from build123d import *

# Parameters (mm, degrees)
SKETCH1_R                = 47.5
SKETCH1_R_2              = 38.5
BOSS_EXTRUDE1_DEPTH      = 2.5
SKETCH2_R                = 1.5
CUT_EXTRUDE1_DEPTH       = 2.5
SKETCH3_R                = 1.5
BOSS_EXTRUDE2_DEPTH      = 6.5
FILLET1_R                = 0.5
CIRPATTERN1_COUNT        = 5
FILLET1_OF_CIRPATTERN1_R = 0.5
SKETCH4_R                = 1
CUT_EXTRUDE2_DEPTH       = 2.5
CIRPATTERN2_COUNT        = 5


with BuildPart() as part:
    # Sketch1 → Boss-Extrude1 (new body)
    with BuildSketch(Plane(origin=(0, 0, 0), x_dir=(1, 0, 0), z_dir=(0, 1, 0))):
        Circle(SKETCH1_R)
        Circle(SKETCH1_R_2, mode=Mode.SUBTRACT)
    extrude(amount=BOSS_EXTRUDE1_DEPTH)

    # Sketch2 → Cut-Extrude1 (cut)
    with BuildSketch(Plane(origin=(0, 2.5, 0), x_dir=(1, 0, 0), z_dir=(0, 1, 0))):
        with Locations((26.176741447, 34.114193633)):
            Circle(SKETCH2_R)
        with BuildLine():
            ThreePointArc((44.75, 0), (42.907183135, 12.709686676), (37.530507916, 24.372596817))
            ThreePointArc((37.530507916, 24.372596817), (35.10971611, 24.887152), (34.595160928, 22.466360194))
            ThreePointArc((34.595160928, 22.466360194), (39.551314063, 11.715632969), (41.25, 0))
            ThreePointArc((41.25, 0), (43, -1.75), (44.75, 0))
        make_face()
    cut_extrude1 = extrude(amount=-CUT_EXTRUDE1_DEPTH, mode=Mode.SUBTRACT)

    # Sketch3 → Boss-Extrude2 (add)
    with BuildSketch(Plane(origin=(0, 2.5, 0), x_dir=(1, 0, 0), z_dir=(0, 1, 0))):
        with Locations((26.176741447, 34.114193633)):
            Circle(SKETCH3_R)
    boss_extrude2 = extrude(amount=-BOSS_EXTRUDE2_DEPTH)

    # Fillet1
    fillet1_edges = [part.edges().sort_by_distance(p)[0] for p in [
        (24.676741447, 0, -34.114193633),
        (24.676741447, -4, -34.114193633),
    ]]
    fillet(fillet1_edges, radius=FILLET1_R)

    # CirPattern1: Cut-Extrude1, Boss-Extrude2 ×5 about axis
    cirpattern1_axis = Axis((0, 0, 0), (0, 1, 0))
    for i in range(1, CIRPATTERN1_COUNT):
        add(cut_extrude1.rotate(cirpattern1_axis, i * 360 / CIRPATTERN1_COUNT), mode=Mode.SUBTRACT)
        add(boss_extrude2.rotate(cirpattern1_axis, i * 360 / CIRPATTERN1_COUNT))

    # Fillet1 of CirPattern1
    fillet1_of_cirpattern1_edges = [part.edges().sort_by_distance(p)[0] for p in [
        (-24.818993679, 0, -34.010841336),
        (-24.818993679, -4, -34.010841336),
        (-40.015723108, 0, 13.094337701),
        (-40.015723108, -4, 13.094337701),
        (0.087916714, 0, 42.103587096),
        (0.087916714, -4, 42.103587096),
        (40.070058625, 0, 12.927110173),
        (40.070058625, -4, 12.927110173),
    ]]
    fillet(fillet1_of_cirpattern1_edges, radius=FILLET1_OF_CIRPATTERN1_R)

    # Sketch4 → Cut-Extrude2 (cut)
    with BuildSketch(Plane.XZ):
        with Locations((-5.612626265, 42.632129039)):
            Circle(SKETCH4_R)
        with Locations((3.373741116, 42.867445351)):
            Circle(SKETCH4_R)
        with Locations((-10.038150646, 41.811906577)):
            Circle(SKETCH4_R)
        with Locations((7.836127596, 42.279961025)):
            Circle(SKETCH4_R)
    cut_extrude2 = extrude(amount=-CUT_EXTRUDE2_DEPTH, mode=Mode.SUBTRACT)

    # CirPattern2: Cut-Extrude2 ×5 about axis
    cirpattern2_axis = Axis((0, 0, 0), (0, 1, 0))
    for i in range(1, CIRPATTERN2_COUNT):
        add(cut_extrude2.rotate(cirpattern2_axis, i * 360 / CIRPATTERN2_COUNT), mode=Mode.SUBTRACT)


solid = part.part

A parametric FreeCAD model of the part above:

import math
import FreeCAD as App
import Part
import Sketcher


def edges_at(feature, points):
    """Names of the edges that pass closest to the given points."""
    edges = feature.Shape.Edges
    near = lambda p: min(range(len(edges)), key=lambda i: edges[i].distToShape(Part.Vertex(*p))[0])
    return sorted({f"Edge{near(p) + 1}" for p in points})

doc = App.newDocument("Part")
body = doc.addObject("PartDesign::Body", "Body")

# Sketch on XZ plane
sketch1 = body.newObject("Sketcher::SketchObject", "Sketch")
sketch1.AttachmentSupport = (doc.getObject("XZ_Plane"), [""])
sketch1.MapMode = "FlatFace"
sketch1.addGeometry(Part.Circle(App.Vector(0, 0, 0), App.Vector(0, 0, 1), 47.5), False)
sketch1.addGeometry(Part.Circle(App.Vector(0, 0, 0), App.Vector(0, 0, 1), 38.5), False)
sketch1.addConstraint(Sketcher.Constraint("Coincident", 0, 3, -1, 1))
sketch1.addConstraint(Sketcher.Constraint("Coincident", 1, 3, -1, 1))
sketch1.addConstraint(Sketcher.Constraint("Diameter", 0, 95.0))
sketch1.addConstraint(Sketcher.Constraint("Diameter", 1, 77.0))
pad1 = body.newObject("PartDesign::Pad", "Pad")
pad1.Profile = sketch1
pad1.Length = 2.5
pad1.Reversed = True

# Sketch on XZ plane
sketch2 = body.newObject("Sketcher::SketchObject", "Sketch001")
sketch2.AttachmentSupport = (doc.getObject("XZ_Plane"), [""])
sketch2.MapMode = "FlatFace"
sketch2.AttachmentOffset = App.Placement(App.Vector(0, 0, -2.5), App.Rotation())
sketch2.addGeometry(Part.Circle(App.Vector(26.176741, -34.114194, 0), App.Vector(0, 0, 1), 1.5), False)
sketch2.addGeometry(Part.ArcOfCircle(Part.Circle(App.Vector(0, 0, 0), App.Vector(0, 0, 1), 44.75), math.radians(-33), math.radians(0)), False)
sketch2.addGeometry(Part.ArcOfCircle(Part.Circle(App.Vector(36.062834, -23.419479, 0), App.Vector(0, 0, 1), 1.75), math.radians(147), math.radians(327)), False)
sketch2.addGeometry(Part.ArcOfCircle(Part.Circle(App.Vector(0, 0, 0), App.Vector(0, 0, 1), 41.25), math.radians(-33), math.radians(0)), False)
sketch2.addGeometry(Part.ArcOfCircle(Part.Circle(App.Vector(43, 0, 0), App.Vector(0, 0, 1), 1.75), math.radians(0), math.radians(180)), False)
sketch2.addConstraint(Sketcher.Constraint("Tangent", 1, 1, 2, 2))
sketch2.addConstraint(Sketcher.Constraint("Tangent", 2, 1, 3, 1))
sketch2.addConstraint(Sketcher.Constraint("Tangent", 3, 2, 4, 2))
sketch2.addConstraint(Sketcher.Constraint("Tangent", 4, 1, 1, 2))
sketch2.addConstraint(Sketcher.Constraint("Coincident", 1, 3, -1, 1))
sketch2.addConstraint(Sketcher.Constraint("Coincident", 3, 3, -1, 1))
sketch2.addConstraint(Sketcher.Constraint("PointOnObject", 4, 3, -1))
sketch2.addConstraint(Sketcher.Constraint("Diameter", 0, 3.0))
sketch2.addConstraint(Sketcher.Constraint("Radius", 1, 44.75))
sketch2.addConstraint(Sketcher.Constraint("Radius", 2, 1.75))
sketch2.addConstraint(Sketcher.Constraint("DistanceX", -1, 1, 0, 3, 26.176741))
sketch2.addConstraint(Sketcher.Constraint("DistanceY", 2, 3, -1, 1, 23.419479))
sketch2.addConstraint(Sketcher.Constraint("DistanceY", 0, 3, -1, 1, 34.114194))
pocket1 = body.newObject("PartDesign::Pocket", "Pocket")
pocket1.Profile = sketch2
pocket1.Length = 2.5
pocket1.Reversed = True

# Sketch on XZ plane
sketch3 = body.newObject("Sketcher::SketchObject", "Sketch002")
sketch3.AttachmentSupport = (doc.getObject("XZ_Plane"), [""])
sketch3.MapMode = "FlatFace"
sketch3.AttachmentOffset = App.Placement(App.Vector(0, 0, -2.5), App.Rotation())
sketch3.addGeometry(Part.Circle(App.Vector(26.176741, -34.114194, 0), App.Vector(0, 0, 1), 1.5), False)
sketch3.addConstraint(Sketcher.Constraint("Diameter", 0, 3.0))
sketch3.addConstraint(Sketcher.Constraint("DistanceX", -1, 1, 0, 3, 26.176741))
sketch3.addConstraint(Sketcher.Constraint("DistanceY", 0, 3, -1, 1, 34.114194))
pad2 = body.newObject("PartDesign::Pad", "Pad001")
pad2.Profile = sketch3
pad2.Length = 6.5
doc.recompute()

fillet = body.newObject("PartDesign::Fillet", "Fillet")
fillet.Base = (pad2, edges_at(pad2, [(24.677, 0, -34.114), (24.677, -4, -34.114)]))
fillet.Radius = 0.5
doc.recompute()

polarpattern = body.newObject("PartDesign::PolarPattern", "PolarPattern")
polarpattern.Originals = [pocket1, pad2]
polarpattern.Axis = (doc.getObject("Y_Axis"), [""])
polarpattern.Angle = 360
polarpattern.Occurrences = 5
body.Tip = polarpattern
doc.recompute()

fillet2 = body.newObject("PartDesign::Fillet", "Fillet001")
fillet2.Base = (polarpattern, edges_at(polarpattern, [
    (-24.819, 0, -34.011),
    (-24.819, -4, -34.011),
    (-40.016, 0, 13.094),
    (-40.016, -4, 13.094),
    (0.088, 0, 42.104),
    (0.088, -4, 42.104),
    (40.07, 0, 12.927),
    (40.07, -4, 12.927),
]))
fillet2.Radius = 0.5

# Sketch on XZ plane
sketch4 = body.newObject("Sketcher::SketchObject", "Sketch003")
sketch4.AttachmentSupport = (doc.getObject("XZ_Plane"), [""])
sketch4.MapMode = "FlatFace"
sketch4.addGeometry(Part.Circle(App.Vector(-5.612626, 42.632129, 0), App.Vector(0, 0, 1), 1), False)
sketch4.addGeometry(Part.Circle(App.Vector(3.373741, 42.867445, 0), App.Vector(0, 0, 1), 1), False)
sketch4.addGeometry(Part.Circle(App.Vector(-10.038151, 41.811907, 0), App.Vector(0, 0, 1), 1), False)
sketch4.addGeometry(Part.Circle(App.Vector(7.836128, 42.279961, 0), App.Vector(0, 0, 1), 1), False)
sketch4.addConstraint(Sketcher.Constraint("Equal", 0, 1))
sketch4.addConstraint(Sketcher.Constraint("Equal", 1, 2))
sketch4.addConstraint(Sketcher.Constraint("Equal", 2, 3))
sketch4.addConstraint(Sketcher.Constraint("Diameter", 0, 2.0))
sketch4.addConstraint(Sketcher.Constraint("DistanceY", -1, 1, 0, 3, 42.632129))
sketch4.addConstraint(Sketcher.Constraint("DistanceX", -1, 1, 1, 3, 3.373741))
sketch4.addConstraint(Sketcher.Constraint("DistanceX", 2, 3, -1, 1, 10.038151))
sketch4.addConstraint(Sketcher.Constraint("DistanceY", -1, 1, 3, 3, 42.279961))
sketch4.addConstraint(Sketcher.Constraint("DistanceY", 2, 3, 1, 3, 1.055539))
sketch4.addConstraint(Sketcher.Constraint("DistanceX", 2, 3, 3, 3, 17.874278))
sketch4.addConstraint(Sketcher.Constraint("DistanceX", 0, 3, -1, 1, 5.612626))
sketch4.addConstraint(Sketcher.Constraint("DistanceY", -1, 1, 1, 3, 42.867445))
pocket2 = body.newObject("PartDesign::Pocket", "Pocket001")
pocket2.Profile = sketch4
pocket2.Length = 2.5
doc.recompute()

polarpattern2 = body.newObject("PartDesign::PolarPattern", "PolarPattern001")
polarpattern2.Originals = [pocket2]
polarpattern2.Axis = (doc.getObject("Y_Axis"), [""])
polarpattern2.Angle = 360
polarpattern2.Occurrences = 5
body.Tip = polarpattern2

doc.recompute()
